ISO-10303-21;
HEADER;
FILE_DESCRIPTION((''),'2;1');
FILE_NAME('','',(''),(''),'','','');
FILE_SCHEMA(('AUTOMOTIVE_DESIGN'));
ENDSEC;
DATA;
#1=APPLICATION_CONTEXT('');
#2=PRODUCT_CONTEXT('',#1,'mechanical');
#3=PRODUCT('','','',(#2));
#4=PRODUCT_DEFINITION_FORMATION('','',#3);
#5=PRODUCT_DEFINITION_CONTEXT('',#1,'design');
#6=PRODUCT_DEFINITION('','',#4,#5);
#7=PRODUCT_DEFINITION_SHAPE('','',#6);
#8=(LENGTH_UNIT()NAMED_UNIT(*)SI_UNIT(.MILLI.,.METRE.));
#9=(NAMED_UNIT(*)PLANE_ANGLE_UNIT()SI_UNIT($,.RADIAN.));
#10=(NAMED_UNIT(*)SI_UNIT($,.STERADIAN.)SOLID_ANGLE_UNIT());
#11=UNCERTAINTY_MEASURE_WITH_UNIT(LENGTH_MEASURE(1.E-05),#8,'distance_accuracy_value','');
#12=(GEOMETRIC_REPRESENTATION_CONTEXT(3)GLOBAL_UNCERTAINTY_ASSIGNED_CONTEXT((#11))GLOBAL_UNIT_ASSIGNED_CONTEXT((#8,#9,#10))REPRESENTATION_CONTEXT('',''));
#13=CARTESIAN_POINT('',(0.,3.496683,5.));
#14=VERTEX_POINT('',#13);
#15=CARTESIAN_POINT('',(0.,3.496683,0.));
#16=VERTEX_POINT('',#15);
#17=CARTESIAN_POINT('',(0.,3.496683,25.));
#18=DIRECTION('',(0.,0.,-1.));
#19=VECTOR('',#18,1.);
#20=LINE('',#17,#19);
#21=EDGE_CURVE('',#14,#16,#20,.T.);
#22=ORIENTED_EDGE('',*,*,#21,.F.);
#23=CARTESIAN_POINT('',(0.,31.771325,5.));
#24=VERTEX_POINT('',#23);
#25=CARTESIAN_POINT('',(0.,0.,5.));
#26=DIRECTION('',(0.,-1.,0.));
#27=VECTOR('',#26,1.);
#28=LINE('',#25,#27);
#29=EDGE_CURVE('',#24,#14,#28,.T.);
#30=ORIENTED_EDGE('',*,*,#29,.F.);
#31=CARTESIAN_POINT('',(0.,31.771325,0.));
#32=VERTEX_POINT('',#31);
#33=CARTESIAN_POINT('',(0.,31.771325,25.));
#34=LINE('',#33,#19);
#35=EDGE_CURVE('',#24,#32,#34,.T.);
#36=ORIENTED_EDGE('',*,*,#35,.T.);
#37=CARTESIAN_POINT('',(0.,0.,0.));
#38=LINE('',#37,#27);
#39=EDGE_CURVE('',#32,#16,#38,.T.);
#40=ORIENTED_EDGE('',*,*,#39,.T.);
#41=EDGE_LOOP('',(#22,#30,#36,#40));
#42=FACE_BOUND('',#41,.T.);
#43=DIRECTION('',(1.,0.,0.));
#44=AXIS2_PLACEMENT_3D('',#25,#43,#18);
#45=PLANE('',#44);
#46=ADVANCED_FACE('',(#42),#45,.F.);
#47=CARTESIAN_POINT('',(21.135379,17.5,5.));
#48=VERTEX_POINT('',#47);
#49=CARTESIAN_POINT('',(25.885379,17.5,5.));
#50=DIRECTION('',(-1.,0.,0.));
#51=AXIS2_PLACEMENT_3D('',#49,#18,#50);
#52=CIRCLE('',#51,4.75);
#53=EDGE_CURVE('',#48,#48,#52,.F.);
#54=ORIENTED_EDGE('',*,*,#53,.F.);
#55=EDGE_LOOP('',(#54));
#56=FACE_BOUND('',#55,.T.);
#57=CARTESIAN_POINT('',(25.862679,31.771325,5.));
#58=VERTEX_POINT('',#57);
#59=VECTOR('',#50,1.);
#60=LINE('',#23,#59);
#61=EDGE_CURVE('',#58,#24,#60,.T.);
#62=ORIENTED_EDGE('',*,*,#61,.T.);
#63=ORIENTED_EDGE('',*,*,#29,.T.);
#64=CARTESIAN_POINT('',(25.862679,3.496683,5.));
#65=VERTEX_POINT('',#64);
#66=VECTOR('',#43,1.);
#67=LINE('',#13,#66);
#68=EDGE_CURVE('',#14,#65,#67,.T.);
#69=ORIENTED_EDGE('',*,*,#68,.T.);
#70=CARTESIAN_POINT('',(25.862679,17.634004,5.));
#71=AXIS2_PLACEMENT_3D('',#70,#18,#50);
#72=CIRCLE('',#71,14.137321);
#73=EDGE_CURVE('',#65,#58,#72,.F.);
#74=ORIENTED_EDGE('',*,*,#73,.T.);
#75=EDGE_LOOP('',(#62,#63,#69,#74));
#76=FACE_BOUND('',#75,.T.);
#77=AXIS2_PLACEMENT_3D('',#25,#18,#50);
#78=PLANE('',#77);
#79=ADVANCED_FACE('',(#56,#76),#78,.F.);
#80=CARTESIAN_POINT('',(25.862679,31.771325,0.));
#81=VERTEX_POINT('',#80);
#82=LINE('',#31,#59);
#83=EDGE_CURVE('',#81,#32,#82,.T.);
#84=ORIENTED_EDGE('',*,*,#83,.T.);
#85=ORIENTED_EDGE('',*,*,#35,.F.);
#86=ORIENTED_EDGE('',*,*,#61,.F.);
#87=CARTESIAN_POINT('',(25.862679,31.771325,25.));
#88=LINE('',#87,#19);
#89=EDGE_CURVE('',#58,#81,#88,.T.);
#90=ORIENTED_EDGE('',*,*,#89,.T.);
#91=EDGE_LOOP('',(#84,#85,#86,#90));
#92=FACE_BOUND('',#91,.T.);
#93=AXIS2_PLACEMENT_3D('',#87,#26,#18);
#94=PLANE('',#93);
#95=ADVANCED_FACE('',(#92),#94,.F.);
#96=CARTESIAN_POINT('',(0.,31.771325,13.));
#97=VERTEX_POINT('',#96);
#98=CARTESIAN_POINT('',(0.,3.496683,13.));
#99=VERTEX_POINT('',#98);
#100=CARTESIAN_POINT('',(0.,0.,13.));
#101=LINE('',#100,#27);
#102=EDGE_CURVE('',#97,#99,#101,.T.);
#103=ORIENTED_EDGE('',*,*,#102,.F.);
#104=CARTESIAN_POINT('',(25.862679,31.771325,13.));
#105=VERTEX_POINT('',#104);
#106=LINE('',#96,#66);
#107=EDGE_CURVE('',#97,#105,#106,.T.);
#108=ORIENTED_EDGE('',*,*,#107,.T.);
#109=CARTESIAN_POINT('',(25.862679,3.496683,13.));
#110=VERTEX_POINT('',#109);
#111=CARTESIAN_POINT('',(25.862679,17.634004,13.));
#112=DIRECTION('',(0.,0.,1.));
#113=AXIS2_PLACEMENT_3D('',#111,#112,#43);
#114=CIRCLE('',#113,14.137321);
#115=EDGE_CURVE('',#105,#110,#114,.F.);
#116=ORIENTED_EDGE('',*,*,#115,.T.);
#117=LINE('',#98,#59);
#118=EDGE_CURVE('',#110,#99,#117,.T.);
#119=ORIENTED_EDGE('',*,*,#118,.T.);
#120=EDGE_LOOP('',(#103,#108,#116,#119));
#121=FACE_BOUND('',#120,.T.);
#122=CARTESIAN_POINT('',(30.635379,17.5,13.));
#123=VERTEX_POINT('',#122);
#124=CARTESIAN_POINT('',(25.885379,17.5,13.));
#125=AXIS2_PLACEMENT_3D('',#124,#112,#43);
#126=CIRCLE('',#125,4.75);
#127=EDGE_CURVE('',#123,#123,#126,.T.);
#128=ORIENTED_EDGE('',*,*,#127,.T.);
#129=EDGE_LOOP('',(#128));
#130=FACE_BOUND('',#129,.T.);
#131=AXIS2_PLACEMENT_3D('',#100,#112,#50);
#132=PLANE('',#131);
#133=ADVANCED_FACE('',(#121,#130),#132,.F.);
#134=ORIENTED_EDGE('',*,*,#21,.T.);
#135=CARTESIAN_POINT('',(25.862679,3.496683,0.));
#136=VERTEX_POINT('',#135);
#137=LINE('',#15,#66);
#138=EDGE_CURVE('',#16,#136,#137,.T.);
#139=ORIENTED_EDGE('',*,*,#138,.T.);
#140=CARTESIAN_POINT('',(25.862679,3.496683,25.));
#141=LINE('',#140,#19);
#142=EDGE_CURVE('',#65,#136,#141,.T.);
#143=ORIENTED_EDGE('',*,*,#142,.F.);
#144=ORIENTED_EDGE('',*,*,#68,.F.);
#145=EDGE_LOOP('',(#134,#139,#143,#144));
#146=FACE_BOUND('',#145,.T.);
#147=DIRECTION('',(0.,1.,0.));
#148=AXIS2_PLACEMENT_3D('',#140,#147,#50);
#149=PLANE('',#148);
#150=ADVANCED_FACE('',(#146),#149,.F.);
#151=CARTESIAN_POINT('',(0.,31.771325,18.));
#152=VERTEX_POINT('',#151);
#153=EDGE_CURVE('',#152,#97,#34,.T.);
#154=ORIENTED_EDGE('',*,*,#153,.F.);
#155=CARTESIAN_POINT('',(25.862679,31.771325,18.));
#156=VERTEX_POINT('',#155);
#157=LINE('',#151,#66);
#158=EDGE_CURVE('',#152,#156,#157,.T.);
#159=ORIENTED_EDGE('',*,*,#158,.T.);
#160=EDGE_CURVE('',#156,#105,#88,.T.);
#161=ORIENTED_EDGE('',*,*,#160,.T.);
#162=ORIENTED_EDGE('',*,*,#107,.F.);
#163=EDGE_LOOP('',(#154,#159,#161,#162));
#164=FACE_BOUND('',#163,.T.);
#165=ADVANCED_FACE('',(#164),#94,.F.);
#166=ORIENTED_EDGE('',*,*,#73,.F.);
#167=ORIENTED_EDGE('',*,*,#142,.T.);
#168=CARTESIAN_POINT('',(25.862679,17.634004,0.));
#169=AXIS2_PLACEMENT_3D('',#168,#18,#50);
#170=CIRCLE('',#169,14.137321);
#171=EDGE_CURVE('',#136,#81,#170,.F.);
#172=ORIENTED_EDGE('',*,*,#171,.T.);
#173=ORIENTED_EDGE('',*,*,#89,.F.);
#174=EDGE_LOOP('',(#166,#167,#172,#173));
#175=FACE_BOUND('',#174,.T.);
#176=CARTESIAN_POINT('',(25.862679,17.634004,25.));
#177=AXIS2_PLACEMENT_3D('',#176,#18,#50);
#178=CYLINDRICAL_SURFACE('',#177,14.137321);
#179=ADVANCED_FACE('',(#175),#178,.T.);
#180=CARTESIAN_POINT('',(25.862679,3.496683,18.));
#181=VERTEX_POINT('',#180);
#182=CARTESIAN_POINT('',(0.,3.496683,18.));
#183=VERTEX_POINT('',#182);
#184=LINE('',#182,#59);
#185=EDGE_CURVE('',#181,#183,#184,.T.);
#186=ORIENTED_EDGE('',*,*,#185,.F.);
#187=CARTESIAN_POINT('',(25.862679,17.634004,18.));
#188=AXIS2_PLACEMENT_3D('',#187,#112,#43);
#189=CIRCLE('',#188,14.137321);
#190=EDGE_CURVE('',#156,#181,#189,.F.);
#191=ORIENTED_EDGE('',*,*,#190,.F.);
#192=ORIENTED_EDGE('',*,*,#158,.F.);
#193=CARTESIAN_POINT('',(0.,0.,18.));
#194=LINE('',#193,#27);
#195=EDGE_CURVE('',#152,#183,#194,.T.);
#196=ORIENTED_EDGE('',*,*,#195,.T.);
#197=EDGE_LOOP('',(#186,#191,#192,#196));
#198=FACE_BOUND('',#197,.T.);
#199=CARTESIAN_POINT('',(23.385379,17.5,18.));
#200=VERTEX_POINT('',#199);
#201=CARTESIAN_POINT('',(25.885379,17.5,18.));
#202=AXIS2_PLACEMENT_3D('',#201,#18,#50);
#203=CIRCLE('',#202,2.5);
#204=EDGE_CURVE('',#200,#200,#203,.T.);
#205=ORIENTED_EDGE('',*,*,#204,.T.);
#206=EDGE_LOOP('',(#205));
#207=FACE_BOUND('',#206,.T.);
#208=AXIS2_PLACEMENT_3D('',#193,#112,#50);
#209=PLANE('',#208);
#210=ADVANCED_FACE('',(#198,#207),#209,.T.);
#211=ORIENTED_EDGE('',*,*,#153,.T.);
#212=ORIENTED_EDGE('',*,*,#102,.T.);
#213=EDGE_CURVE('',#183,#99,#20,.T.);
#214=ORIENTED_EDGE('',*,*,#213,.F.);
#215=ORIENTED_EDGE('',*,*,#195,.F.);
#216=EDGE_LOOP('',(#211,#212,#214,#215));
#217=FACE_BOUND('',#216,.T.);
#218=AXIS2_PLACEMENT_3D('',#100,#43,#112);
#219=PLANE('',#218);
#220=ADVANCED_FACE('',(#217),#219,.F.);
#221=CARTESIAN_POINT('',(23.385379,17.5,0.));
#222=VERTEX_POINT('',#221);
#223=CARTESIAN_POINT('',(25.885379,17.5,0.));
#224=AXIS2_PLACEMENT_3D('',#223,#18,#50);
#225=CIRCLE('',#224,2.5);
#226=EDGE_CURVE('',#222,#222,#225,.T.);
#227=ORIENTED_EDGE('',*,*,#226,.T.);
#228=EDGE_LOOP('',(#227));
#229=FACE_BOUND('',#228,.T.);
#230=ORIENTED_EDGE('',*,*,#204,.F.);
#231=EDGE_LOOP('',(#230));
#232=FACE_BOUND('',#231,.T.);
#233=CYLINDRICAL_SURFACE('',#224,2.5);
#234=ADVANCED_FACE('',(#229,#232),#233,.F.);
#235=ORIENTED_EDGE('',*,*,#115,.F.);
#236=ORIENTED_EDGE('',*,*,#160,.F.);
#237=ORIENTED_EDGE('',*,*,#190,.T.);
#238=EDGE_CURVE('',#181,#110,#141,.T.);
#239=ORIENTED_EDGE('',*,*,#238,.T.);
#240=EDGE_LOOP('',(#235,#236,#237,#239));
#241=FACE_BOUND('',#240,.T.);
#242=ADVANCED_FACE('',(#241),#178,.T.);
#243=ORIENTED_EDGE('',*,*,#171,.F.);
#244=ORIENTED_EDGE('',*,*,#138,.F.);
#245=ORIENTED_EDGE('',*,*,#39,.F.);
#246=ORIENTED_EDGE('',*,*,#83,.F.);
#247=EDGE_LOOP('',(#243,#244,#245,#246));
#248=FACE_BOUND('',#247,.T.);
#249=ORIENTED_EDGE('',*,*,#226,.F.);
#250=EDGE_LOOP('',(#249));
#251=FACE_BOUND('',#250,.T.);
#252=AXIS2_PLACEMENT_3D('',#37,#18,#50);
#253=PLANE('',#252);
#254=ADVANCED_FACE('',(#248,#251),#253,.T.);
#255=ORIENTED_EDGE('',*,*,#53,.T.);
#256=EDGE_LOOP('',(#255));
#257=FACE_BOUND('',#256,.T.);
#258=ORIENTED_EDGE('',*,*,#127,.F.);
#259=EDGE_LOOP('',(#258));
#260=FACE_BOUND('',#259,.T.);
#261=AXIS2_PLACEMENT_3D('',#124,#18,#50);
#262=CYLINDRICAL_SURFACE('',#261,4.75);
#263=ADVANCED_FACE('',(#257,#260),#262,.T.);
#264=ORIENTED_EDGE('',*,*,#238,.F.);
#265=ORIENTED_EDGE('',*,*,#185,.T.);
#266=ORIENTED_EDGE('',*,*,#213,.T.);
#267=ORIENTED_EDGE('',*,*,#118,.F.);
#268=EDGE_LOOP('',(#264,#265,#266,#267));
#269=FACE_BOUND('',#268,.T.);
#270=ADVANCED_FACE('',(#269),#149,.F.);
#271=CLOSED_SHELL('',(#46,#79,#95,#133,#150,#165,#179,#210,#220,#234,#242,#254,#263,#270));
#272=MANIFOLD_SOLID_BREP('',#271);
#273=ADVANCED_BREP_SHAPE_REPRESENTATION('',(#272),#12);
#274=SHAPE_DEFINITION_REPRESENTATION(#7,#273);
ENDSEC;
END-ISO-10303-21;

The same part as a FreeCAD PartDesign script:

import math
import FreeCAD as App
import Part
import Sketcher
from FreeCAD import Vector
Q = App.Units.Quantity


def add_polygon(sketch, points):
    """Adds a closed chain of lines whose ends are joined by coincident constraints."""
    first, n = sketch.GeometryCount, len(points)
    for a, b in zip(points, points[1:] + points[:1]):
        sketch.addGeometry(Part.LineSegment(App.Vector(*a, 0), App.Vector(*b, 0)), False)
    for i in range(n):
        sketch.addConstraint(Sketcher.Constraint("Coincident", first + i, 2, first + (i + 1) % n, 1))

doc = App.newDocument("Part")
body = doc.addObject("PartDesign::Body", "Body")

# Sketch on XY plane
sketch1 = body.newObject("Sketcher::SketchObject", "Sketch")
sketch1.AttachmentSupport = (doc.getObject("XY_Plane"), [""])
sketch1.MapMode = "FlatFace"
add_polygon(sketch1, [(0, 35), (0, 0), (40, 0), (40, 35)])  # lines 0-3
sketch1.addConstraint(Sketcher.Constraint("Vertical", 0))
sketch1.addConstraint(Sketcher.Constraint("Horizontal", 1))
sketch1.addConstraint(Sketcher.Constraint("Vertical", 2))
sketch1.addConstraint(Sketcher.Constraint("Horizontal", 3))
sketch1.addConstraint(Sketcher.Constraint("Coincident", 0, 2, -1, 1))
sketch1.addConstraint(Sketcher.Constraint("DistanceX", 1, 1, 1, 2, Q("40 mm")))
sketch1.addConstraint(Sketcher.Constraint("DistanceY", 0, 2, 0, 1, Q("35 mm")))
pad1 = body.newObject("PartDesign::Pad", "Pad")
pad1.Profile = sketch1
pad1.Length = 5

# Sketch on XY plane
sketch2 = body.newObject("Sketcher::SketchObject", "Sketch001")
sketch2.AttachmentSupport = (doc.getObject("XY_Plane"), [""])
sketch2.MapMode = "FlatFace"
sketch2.AttachmentOffset = App.Placement(Vector(0, 0, 5), App.Rotation())
sketch2.addGeometry(Part.Circle(Vector(25.9, 17.5, 0), Vector(0, 0, 1), 4.8), False)
sketch2.addConstraint(Sketcher.Constraint("Diameter", 0, Q("9.5 mm")))
sketch2.addConstraint(Sketcher.Constraint("DistanceY", -1, 1, 0, 3, Q("17.5 mm")))
sketch2.addConstraint(Sketcher.Constraint("DistanceX", -1, 1, 0, 3, Q("25.885379 mm")))
pad2 = body.newObject("PartDesign::Pad", "Pad001")
pad2.Profile = sketch2
pad2.Length = 8
body2 = doc.addObject("PartDesign::Body", "Body001")
doc.recompute()

body2.BaseFeature = body
doc.recompute()

mirroring = doc.addObject("Part::Mirroring", "Mirroring")
mirroring.Source = body
mirroring.Base = Vector(0, 0, 9)
mirroring.Normal = Vector(0, 0, 1)
body3 = doc.addObject("PartDesign::Body", "Body002")
body3.BaseFeature = mirroring
boolean = body2.newObject("PartDesign::Boolean", "Boolean")
boolean.Type = "Fuse"
boolean.addObjects([body3])
doc.recompute()

# Sketch on XY plane
sketch3 = body2.newObject("Sketcher::SketchObject", "Sketch002")
sketch3.AttachmentSupport = (doc.getObject("XY_Plane001"), [""])
sketch3.MapMode = "FlatFace"
sketch3.AttachmentOffset = App.Placement(Vector(0, 0, 5), App.Rotation())
add_polygon(sketch3, [(-7, 42), (-7, -7), (47, -7), (47, 42)])  # lines 0-3
sketch3.addGeometry(Part.LineSegment(Vector(0, 32, 0), Vector(26, 32, 0)), False)  # 4
sketch3.addGeometry(Part.ArcOfCircle(Part.Circle(Vector(26, 18, 0), Vector(0, 0, 1), 14), math.radians(-90), math.radians(90)), False)  # 5
sketch3.addGeometry(Part.LineSegment(Vector(26, 3, 0), Vector(0, 3, 0)), False)  # 6
sketch3.addGeometry(Part.LineSegment(Vector(0, 3, 0), Vector(0, 32, 0)), False)  # 7
sketch3.addConstraint(Sketcher.Constraint("Tangent", 4, 2, 5, 2))
sketch3.addConstraint(Sketcher.Constraint("Tangent", 5, 1, 6, 1))
sketch3.addConstraint(Sketcher.Constraint("Coincident", 6, 2, 7, 1))
sketch3.addConstraint(Sketcher.Constraint("Coincident", 7, 2, 4, 1))
sketch3.addConstraint(Sketcher.Constraint("Vertical", 0))
sketch3.addConstraint(Sketcher.Constraint("Horizontal", 1))
sketch3.addConstraint(Sketcher.Constraint("Vertical", 2))
sketch3.addConstraint(Sketcher.Constraint("Horizontal", 3))
sketch3.addConstraint(Sketcher.Constraint("Horizontal", 4))
sketch3.addConstraint(Sketcher.Constraint("Horizontal", 6))
sketch3.addConstraint(Sketcher.Constraint("Vertical", 7))
sketch3.addConstraint(Sketcher.Constraint("PointOnObject", 6, 2, -2))
sketch3.addConstraint(Sketcher.Constraint("DistanceX", 1, 1, 1, 2, Q("53.224 mm")))
sketch3.addConstraint(Sketcher.Constraint("DistanceY", 0, 2, 0, 1, Q("48.224 mm")))
sketch3.addConstraint(Sketcher.Constraint("Radius", 5, Q("14.137321 mm")))
sketch3.addConstraint(Sketcher.Constraint("DistanceX", 0, 2, -1, 1, Q("6.612 mm")))
sketch3.addConstraint(Sketcher.Constraint("DistanceY", 0, 2, -1, 1, Q("6.612 mm")))
sketch3.addConstraint(Sketcher.Constraint("DistanceX", 4, 1, 4, 2, Q("25.862679 mm")))
sketch3.addConstraint(Sketcher.Constraint("DistanceY", -1, 1, 5, 3, Q("17.634004 mm")))
pocket1 = body2.newObject("PartDesign::Pocket", "Pocket")
pocket1.Profile = sketch3
pocket1.Type = "ThroughAll"
pocket1.Midplane = True

# Sketch on XY plane
sketch4 = body2.newObject("Sketcher::SketchObject", "Sketch003")
sketch4.AttachmentSupport = (doc.getObject("XY_Plane001"), [""])
sketch4.MapMode = "FlatFace"
sketch4.addGeometry(Part.Circle(Vector(25.9, 17.5, 0), Vector(0, 0, 1), 2.5), False)
sketch4.addConstraint(Sketcher.Constraint("Diameter", 0, Q("5 mm")))
sketch4.addConstraint(Sketcher.Constraint("DistanceY", -1, 1, 0, 3, Q("17.5 mm")))
sketch4.addConstraint(Sketcher.Constraint("DistanceX", -1, 1, 0, 3, Q("25.885379 mm")))
doc.recompute()
hole = body2.newObject("PartDesign::Hole", "Hole")
hole.Profile = sketch4
hole.ThreadType = "None"
hole.Diameter = 5
hole.DepthType = "ThroughAll"
hole.Reversed = True
mirroring.Visibility = False

doc.recompute()
